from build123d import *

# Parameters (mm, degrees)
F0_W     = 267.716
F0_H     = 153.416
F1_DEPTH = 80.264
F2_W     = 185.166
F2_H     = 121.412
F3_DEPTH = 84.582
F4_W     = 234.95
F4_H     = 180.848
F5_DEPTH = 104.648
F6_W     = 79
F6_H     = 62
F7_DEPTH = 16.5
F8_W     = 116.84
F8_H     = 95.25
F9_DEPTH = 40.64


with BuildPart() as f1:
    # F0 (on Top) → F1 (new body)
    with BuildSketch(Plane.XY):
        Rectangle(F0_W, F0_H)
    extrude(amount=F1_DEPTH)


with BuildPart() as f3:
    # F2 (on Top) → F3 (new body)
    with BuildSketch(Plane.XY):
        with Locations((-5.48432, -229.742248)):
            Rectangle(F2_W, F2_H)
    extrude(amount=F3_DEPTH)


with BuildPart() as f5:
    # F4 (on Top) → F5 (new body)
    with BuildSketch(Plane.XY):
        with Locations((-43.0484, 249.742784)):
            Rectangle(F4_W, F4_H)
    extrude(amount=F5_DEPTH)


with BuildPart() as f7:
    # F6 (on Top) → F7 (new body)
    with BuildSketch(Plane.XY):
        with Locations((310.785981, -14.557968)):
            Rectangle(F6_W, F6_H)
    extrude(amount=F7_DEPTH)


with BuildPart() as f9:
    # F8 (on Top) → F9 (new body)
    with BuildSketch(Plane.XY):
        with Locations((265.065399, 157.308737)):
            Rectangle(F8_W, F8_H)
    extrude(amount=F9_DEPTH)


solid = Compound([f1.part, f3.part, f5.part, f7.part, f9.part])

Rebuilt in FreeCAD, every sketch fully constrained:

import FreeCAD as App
import Part
import Sketcher

V = App.Vector
Q = App.Units.Quantity


def add_polygon(sketch, points):
    """Adds a closed chain of lines whose ends are joined by coincident constraints."""
    first, n = sketch.GeometryCount, len(points)
    for a, b in zip(points, points[1:] + points[:1]):
        sketch.addGeometry(Part.LineSegment(App.Vector(*a, 0), App.Vector(*b, 0)), False)
    for i in range(n):
        sketch.addConstraint(Sketcher.Constraint("Coincident", first + i, 2, first + (i + 1) % n, 1))

doc = App.newDocument("Part")
body = doc.addObject("PartDesign::Body", "Body")

sketch1 = body.newObject("Sketcher::SketchObject", "Sketch")
sketch1.AttachmentSupport = (doc.getObject("XY_Plane"), [""])
sketch1.MapMode = "FlatFace"
add_polygon(sketch1, [(-134, 77), (-134, -77), (134, -77), (134, 77)])
sketch1.addConstraint(Sketcher.Constraint("Vertical", 0))
sketch1.addConstraint(Sketcher.Constraint("Horizontal", 1))
sketch1.addConstraint(Sketcher.Constraint("Vertical", 2))
sketch1.addConstraint(Sketcher.Constraint("Horizontal", 3))
sketch1.addConstraint(Sketcher.Constraint("Symmetric", 0, 2, 2, 2, -1, 1))
sketch1.addConstraint(Sketcher.Constraint("DistanceX", 1, 1, 1, 2, Q("10.54 in")))
sketch1.addConstraint(Sketcher.Constraint("DistanceY", 0, 2, 0, 1, Q("6.04 in")))
pad1 = body.newObject("PartDesign::Pad", "Pad")
pad1.Profile = sketch1
pad1.Length = Q("3.16 in")
body2 = doc.addObject("PartDesign::Body", "Body001")

sketch2 = body2.newObject("Sketcher::SketchObject", "Sketch001")
sketch2.AttachmentSupport = (doc.getObject("XY_Plane001"), [""])
sketch2.MapMode = "FlatFace"
add_polygon(sketch2, [(-98, -169), (-98, -290), (87, -290), (87, -169)])
sketch2.addConstraint(Sketcher.Constraint("Vertical", 0))
sketch2.addConstraint(Sketcher.Constraint("Horizontal", 1))
sketch2.addConstraint(Sketcher.Constraint("Vertical", 2))
sketch2.addConstraint(Sketcher.Constraint("Horizontal", 3))
sketch2.addConstraint(Sketcher.Constraint("DistanceX", 1, 1, 1, 2, Q("7.29 in")))
sketch2.addConstraint(Sketcher.Constraint("DistanceY", 0, 2, 0, 1, Q("4.78 in")))
sketch2.addConstraint(Sketcher.Constraint("DistanceX", 0, 2, -1, 1, 98.06732))
sketch2.addConstraint(Sketcher.Constraint("DistanceY", 0, 2, -1, 1, 290.448248))
pad2 = body2.newObject("PartDesign::Pad", "Pad001")
pad2.Profile = sketch2
pad2.Length = Q("3.33 in")
body3 = doc.addObject("PartDesign::Body", "Body002")

sketch3 = body3.newObject("Sketcher::SketchObject", "Sketch002")
sketch3.AttachmentSupport = (doc.getObject("XY_Plane002"), [""])
sketch3.MapMode = "FlatFace"
add_polygon(sketch3, [(-161, 340), (-161, 159), (74, 159), (74, 340)])
sketch3.addConstraint(Sketcher.Constraint("Vertical", 0))
sketch3.addConstraint(Sketcher.Constraint("Horizontal", 1))
sketch3.addConstraint(Sketcher.Constraint("Vertical", 2))
sketch3.addConstraint(Sketcher.Constraint("Horizontal", 3))
sketch3.addConstraint(Sketcher.Constraint("DistanceX", 1, 1, 1, 2, Q("9.25 in")))
sketch3.addConstraint(Sketcher.Constraint("DistanceY", 0, 2, 0, 1, Q("7.12 in")))
sketch3.addConstraint(Sketcher.Constraint("DistanceX", 0, 2, -1, 1, 160.5234))
sketch3.addConstraint(Sketcher.Constraint("DistanceY", -1, 1, 0, 2, 159.318784))
pad3 = body3.newObject("PartDesign::Pad", "Pad002")
pad3.Profile = sketch3
pad3.Length = Q("4.12 in")
body4 = doc.addObject("PartDesign::Body", "Body003")

sketch4 = body4.newObject("Sketcher::SketchObject", "Sketch003")
sketch4.AttachmentSupport = (doc.getObject("XY_Plane003"), [""])
sketch4.MapMode = "FlatFace"
add_polygon(sketch4, [(271, 16), (271, -46), (350, -46), (350, 16)])
sketch4.addConstraint(Sketcher.Constraint("Vertical", 0))
sketch4.addConstraint(Sketcher.Constraint("Horizontal", 1))
sketch4.addConstraint(Sketcher.Constraint("Vertical", 2))
sketch4.addConstraint(Sketcher.Constraint("Horizontal", 3))
sketch4.addConstraint(Sketcher.Constraint("DistanceX", 1, 1, 1, 2, 79.0))
sketch4.addConstraint(Sketcher.Constraint("DistanceY", 0, 2, 0, 1, 62.0))
sketch4.addConstraint(Sketcher.Constraint("DistanceX", -1, 1, 0, 2, 271.285981))
sketch4.addConstraint(Sketcher.Constraint("DistanceY", 0, 2, -1, 1, 45.557968))
pad4 = body4.newObject("PartDesign::Pad", "Pad003")
pad4.Profile = sketch4
pad4.Length = 16.5
body5 = doc.addObject("PartDesign::Body", "Body004")

sketch5 = body5.newObject("Sketcher::SketchObject", "Sketch004")
sketch5.AttachmentSupport = (doc.getObject("XY_Plane004"), [""])
sketch5.MapMode = "FlatFace"
add_polygon(sketch5, [(207, 205), (207, 110), (323, 110), (323, 205)])
sketch5.addConstraint(Sketcher.Constraint("Vertical", 0))
sketch5.addConstraint(Sketcher.Constraint("Horizontal", 1))
sketch5.addConstraint(Sketcher.Constraint("Vertical", 2))
sketch5.addConstraint(Sketcher.Constraint("Horizontal", 3))
sketch5.addConstraint(Sketcher.Constraint("DistanceX", 1, 1, 1, 2, Q("4.6 in")))
sketch5.addConstraint(Sketcher.Constraint("DistanceY", 0, 2, 0, 1, Q("3.75 in")))
sketch5.addConstraint(Sketcher.Constraint("DistanceX", -1, 1, 0, 2, 206.645399))
sketch5.addConstraint(Sketcher.Constraint("DistanceY", -1, 1, 0, 2, 109.683737))
pad5 = body5.newObject("PartDesign::Pad", "Pad004")
pad5.Profile = sketch5
pad5.Length = Q("1.6 in")

doc.recompute()
